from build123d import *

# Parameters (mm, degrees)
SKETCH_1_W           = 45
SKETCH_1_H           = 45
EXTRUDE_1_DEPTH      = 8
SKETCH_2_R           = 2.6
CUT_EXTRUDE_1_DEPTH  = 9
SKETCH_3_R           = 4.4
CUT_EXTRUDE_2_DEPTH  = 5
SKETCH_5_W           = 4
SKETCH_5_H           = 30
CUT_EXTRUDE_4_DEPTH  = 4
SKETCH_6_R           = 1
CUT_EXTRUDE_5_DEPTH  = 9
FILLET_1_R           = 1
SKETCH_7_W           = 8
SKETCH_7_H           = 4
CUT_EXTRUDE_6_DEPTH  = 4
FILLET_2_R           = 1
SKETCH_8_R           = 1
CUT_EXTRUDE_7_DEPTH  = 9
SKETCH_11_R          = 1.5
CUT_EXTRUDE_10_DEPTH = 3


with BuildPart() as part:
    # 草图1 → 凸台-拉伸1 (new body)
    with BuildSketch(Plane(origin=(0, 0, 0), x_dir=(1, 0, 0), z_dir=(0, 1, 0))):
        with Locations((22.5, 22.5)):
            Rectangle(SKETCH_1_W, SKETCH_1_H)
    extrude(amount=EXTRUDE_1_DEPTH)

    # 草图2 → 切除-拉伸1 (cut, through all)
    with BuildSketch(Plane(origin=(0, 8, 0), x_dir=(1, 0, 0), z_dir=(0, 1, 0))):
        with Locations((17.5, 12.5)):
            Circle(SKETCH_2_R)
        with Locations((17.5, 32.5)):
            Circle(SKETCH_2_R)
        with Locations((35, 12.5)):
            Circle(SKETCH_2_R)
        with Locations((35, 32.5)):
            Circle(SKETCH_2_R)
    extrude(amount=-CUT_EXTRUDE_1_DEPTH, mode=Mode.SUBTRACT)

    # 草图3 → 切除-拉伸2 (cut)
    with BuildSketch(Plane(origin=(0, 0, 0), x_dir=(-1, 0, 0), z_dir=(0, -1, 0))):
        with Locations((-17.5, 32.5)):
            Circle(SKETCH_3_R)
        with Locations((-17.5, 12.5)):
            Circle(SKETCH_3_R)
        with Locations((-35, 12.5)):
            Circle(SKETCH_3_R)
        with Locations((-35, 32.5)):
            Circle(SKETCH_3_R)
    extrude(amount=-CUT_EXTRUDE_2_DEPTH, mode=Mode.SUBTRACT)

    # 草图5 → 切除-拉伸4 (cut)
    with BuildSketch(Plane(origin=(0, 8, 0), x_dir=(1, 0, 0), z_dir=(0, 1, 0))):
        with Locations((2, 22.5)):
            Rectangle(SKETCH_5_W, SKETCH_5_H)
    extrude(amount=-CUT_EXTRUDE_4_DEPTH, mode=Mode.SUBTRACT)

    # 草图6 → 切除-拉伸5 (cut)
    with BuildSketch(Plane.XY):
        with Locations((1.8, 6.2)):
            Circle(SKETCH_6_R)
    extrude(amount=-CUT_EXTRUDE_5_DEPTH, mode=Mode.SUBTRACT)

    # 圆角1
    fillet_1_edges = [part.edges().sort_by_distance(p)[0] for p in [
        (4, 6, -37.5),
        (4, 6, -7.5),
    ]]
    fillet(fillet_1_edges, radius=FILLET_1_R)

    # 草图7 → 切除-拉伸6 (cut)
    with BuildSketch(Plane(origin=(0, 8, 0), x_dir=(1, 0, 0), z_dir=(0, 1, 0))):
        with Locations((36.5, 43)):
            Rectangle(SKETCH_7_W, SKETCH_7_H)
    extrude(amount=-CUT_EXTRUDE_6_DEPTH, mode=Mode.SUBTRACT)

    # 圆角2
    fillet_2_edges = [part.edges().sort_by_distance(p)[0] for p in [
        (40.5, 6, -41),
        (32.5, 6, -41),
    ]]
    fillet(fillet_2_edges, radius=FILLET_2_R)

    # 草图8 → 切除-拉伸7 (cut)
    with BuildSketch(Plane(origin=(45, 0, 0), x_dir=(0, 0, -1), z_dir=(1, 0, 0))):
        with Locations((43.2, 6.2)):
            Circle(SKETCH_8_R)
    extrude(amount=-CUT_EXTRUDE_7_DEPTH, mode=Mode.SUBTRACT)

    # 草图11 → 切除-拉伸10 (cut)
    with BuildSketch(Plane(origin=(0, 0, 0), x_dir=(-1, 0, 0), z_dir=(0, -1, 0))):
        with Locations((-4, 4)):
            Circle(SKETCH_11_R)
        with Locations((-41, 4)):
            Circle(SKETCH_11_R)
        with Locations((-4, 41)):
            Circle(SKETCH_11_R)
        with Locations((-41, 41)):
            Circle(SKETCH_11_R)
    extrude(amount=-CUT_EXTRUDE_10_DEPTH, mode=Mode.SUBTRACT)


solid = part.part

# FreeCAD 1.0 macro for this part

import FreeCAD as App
import Part
import Sketcher
from FreeCAD import Vector


def edges_at(feature, points):
    """Names of the edges that pass closest to the given points."""
    edges = feature.Shape.Edges
    near = lambda p: min(range(len(edges)), key=lambda i: edges[i].distToShape(Part.Vertex(*p))[0])
    return sorted({f"Edge{near(p) + 1}" for p in points})

doc = App.newDocument("Part")
params = doc.addObject("Spreadsheet::Sheet", "Params")
for row, (alias, value) in enumerate([
    ("sketch1_width", "45 mm"),
    ("pad1_length", "8 mm"),
    ("sketch2_diameter", "5.2 mm"),
    ("sketch3_diameter", "8.8 mm"),
    ("pocket2_length", "5 mm"),
    ("sketch4_width", "4 mm"),
    ("sketch4_height", "30 mm"),
    ("pocket3_length", "4 mm"),
    ("sketch5_diameter", "2 mm"),
    ("pocket4_length", "9 mm"),
    ("fillet_radius", "1 mm"),
    ("sketch6_width", "8 mm"),
    ("sketch6_height", "4 mm"),
    ("pocket5_length", "4 mm"),
    ("fillet2_radius", "1 mm"),
    ("sketch7_diameter", "2 mm"),
    ("pocket6_length", "9 mm"),
    ("sketch8_diameter", "3 mm"),
    ("pocket7_length", "3 mm"),
], start=1):
    params.set(f"A{row}", alias)
    params.set(f"B{row}", "=" + value)
    params.setAlias(f"B{row}", alias)

body = doc.addObject("PartDesign::Body", "Body")

# Sketch on XZ plane
sketch1 = body.newObject("Sketcher::SketchObject", "Sketch")
sketch1.AttachmentSupport = (doc.getObject("XZ_Plane"), [""])
sketch1.MapMode = "FlatFace"
sketch1.addGeometry([
    Part.LineSegment(Vector(0, -45, 0), Vector(0, 0, 0)),
    Part.LineSegment(Vector(0, 0, 0), Vector(45, 0, 0)),
    Part.LineSegment(Vector(45, 0, 0), Vector(45, -45, 0)),
    Part.LineSegment(Vector(45, -45, 0), Vector(0, -45, 0)),
], False)
sketch1.addConstraint([
    Sketcher.Constraint("Coincident", 0, 2, 1, 1),
    Sketcher.Constraint("Coincident", 1, 2, 2, 1),
    Sketcher.Constraint("Coincident", 2, 2, 3, 1),
    Sketcher.Constraint("Coincident", 3, 2, 0, 1),
    Sketcher.Constraint("Vertical", 0),
    Sketcher.Constraint("Horizontal", 1),
    Sketcher.Constraint("Vertical", 2),
    Sketcher.Constraint("Horizontal", 3),
    Sketcher.Constraint("Coincident", 0, 2, -1, 1),
    Sketcher.Constraint("Equal", 3, 0),
    Sketcher.Constraint("DistanceX", 1, 1, 1, 2, 45.0),
])
sketch1.setExpression("Constraints[10]", "Params.sketch1_width")
pad1 = body.newObject("PartDesign::Pad", "Pad")
pad1.Profile = sketch1
pad1.setExpression("Length", "Params.pad1_length")
pad1.Reversed = True

# Sketch on XZ plane
sketch2 = body.newObject("Sketcher::SketchObject", "Sketch001")
sketch2.AttachmentSupport = (doc.getObject("XZ_Plane"), [""])
sketch2.MapMode = "FlatFace"
sketch2.AttachmentOffset = App.Placement(Vector(0, 0, -8), App.Rotation())
sketch2.addGeometry([
    Part.Circle(Vector(17.5, -12.5, 0), Vector(0, 0, 1), 2.6),
    Part.Circle(Vector(17.5, -32.5, 0), Vector(0, 0, 1), 2.6),
    Part.Circle(Vector(35, -12.5, 0), Vector(0, 0, 1), 2.6),
    Part.Circle(Vector(35, -32.5, 0), Vector(0, 0, 1), 2.6),
], False)
sketch2.addConstraint([
    Sketcher.Constraint("Equal", 0, 1),
    Sketcher.Constraint("Equal", 1, 2),
    Sketcher.Constraint("Equal", 2, 3),
    Sketcher.Constraint("Horizontal", 0, 3, 2, 3),
    Sketcher.Constraint("Horizontal", 1, 3, 3, 3),
    Sketcher.Constraint("Vertical", 0, 3, 1, 3),
    Sketcher.Constraint("Vertical", 2, 3, 3, 3),
    Sketcher.Constraint("Diameter", 0, 5.2),
    Sketcher.Constraint("DistanceX", -1, 1, 2, 3, 35.0),
    Sketcher.Constraint("DistanceY", 1, 3, 0, 3, 20.0),
    Sketcher.Constraint("DistanceX", -1, 1, 0, 3, 17.5),
    Sketcher.Constraint("DistanceY", 0, 3, -1, 1, 12.5),
])
sketch2.setExpression("Constraints[7]", "Params.sketch2_diameter")
pocket1 = body.newObject("PartDesign::Pocket", "Pocket")
pocket1.Profile = sketch2
pocket1.Type = "ThroughAll"
pocket1.Reversed = True

# Sketch on XZ plane
sketch3 = body.newObject("Sketcher::SketchObject", "Sketch002")
sketch3.AttachmentSupport = (doc.getObject("XZ_Plane"), [""])
sketch3.MapMode = "FlatFace"
sketch3.addGeometry([
    Part.Circle(Vector(17.5, -32.5, 0), Vector(0, 0, 1), 4.4),
    Part.Circle(Vector(17.5, -12.5, 0), Vector(0, 0, 1), 4.4),
    Part.Circle(Vector(35, -12.5, 0), Vector(0, 0, 1), 4.4),
    Part.Circle(Vector(35, -32.5, 0), Vector(0, 0, 1), 4.4),
], False)
sketch3.addConstraint([
    Sketcher.Constraint("Equal", 0, 1),
    Sketcher.Constraint("Equal", 1, 2),
    Sketcher.Constraint("Equal", 2, 3),
    Sketcher.Constraint("Horizontal", 1, 3, 2, 3),
    Sketcher.Constraint("Horizontal", 0, 3, 3, 3),
    Sketcher.Constraint("Vertical", 0, 3, 1, 3),
    Sketcher.Constraint("Vertical", 2, 3, 3, 3),
    Sketcher.Constraint("Diameter", 0, 8.8),
    Sketcher.Constraint("DistanceX", -1, 1, 2, 3, 35.0),
    Sketcher.Constraint("DistanceY", 0, 3, 1, 3, 20.0),
    Sketcher.Constraint("DistanceX", -1, 1, 0, 3, 17.5),
    Sketcher.Constraint("DistanceY", 0, 3, -1, 1, 32.5),
])
sketch3.setExpression("Constraints[7]", "Params.sketch3_diameter")
pocket2 = body.newObject("PartDesign::Pocket", "Pocket001")
pocket2.Profile = sketch3
pocket2.setExpression("Length", "Params.pocket2_length")

# Sketch on XZ plane
sketch4 = body.newObject("Sketcher::SketchObject", "Sketch003")
sketch4.AttachmentSupport = (doc.getObject("XZ_Plane"), [""])
sketch4.MapMode = "FlatFace"
sketch4.AttachmentOffset = App.Placement(Vector(0, 0, -8), App.Rotation())
sketch4.addGeometry([
    Part.LineSegment(Vector(0, -37.5, 0), Vector(0, -7.5, 0)),
    Part.LineSegment(Vector(0, -7.5, 0), Vector(4, -7.5, 0)),
    Part.LineSegment(Vector(4, -7.5, 0), Vector(4, -37.5, 0)),
    Part.LineSegment(Vector(4, -37.5, 0), Vector(0, -37.5, 0)),
], False)
sketch4.addConstraint([
    Sketcher.Constraint("Coincident", 0, 2, 1, 1),
    Sketcher.Constraint("Coincident", 1, 2, 2, 1),
    Sketcher.Constraint("Coincident", 2, 2, 3, 1),
    Sketcher.Constraint("Coincident", 3, 2, 0, 1),
    Sketcher.Constraint("Vertical", 0),
    Sketcher.Constraint("Horizontal", 1),
    Sketcher.Constraint("Vertical", 2),
    Sketcher.Constraint("Horizontal", 3),
    Sketcher.Constraint("PointOnObject", 0, 2, -2),
    Sketcher.Constraint("DistanceX", 1, 1, 1, 2, 4.0),
    Sketcher.Constraint("DistanceY", 0, 1, 0, 2, 30.0),
    Sketcher.Constraint("DistanceY", 0, 2, -1, 1, 7.5),
])
sketch4.setExpression("Constraints[9]", "Params.sketch4_width")
sketch4.setExpression("Constraints[10]", "Params.sketch4_height")
pocket3 = body.newObject("PartDesign::Pocket", "Pocket002")
pocket3.Profile = sketch4
pocket3.setExpression("Length", "Params.pocket3_length")
pocket3.Reversed = True

# Sketch on XY plane
sketch5 = body.newObject("Sketcher::SketchObject", "Sketch004")
sketch5.AttachmentSupport = (doc.getObject("XY_Plane"), [""])
sketch5.MapMode = "FlatFace"
sketch5.addGeometry(Part.Circle(Vector(1.8, 6.2, 0), Vector(0, 0, 1), 1), False)
sketch5.addConstraint([
    Sketcher.Constraint("Diameter", 0, 2.0),
    Sketcher.Constraint("DistanceX", -1, 1, 0, 3, 1.8),
    Sketcher.Constraint("DistanceY", -1, 1, 0, 3, 6.2),
])
sketch5.setExpression("Constraints[0]", "Params.sketch5_diameter")
pocket4 = body.newObject("PartDesign::Pocket", "Pocket003")
pocket4.Profile = sketch5
pocket4.setExpression("Length", "Params.pocket4_length")
doc.recompute()

fillet = body.newObject("PartDesign::Fillet", "Fillet")
fillet.Base = (pocket4, edges_at(pocket4, [(4, 6, -37.5), (4, 6, -7.5)]))
fillet.setExpression("Radius", "Params.fillet_radius")

# Sketch on XZ plane
sketch6 = body.newObject("Sketcher::SketchObject", "Sketch005")
sketch6.AttachmentSupport = (doc.getObject("XZ_Plane"), [""])
sketch6.MapMode = "FlatFace"
sketch6.AttachmentOffset = App.Placement(Vector(0, 0, -8), App.Rotation())
sketch6.addGeometry([
    Part.LineSegment(Vector(32.5, -45, 0), Vector(32.5, -41, 0)),
    Part.LineSegment(Vector(32.5, -41, 0), Vector(40.5, -41, 0)),
    Part.LineSegment(Vector(40.5, -41, 0), Vector(40.5, -45, 0)),
    Part.LineSegment(Vector(40.5, -45, 0), Vector(32.5, -45, 0)),
], False)
sketch6.addConstraint([
    Sketcher.Constraint("Coincident", 0, 2, 1, 1),
    Sketcher.Constraint("Coincident", 1, 2, 2, 1),
    Sketcher.Constraint("Coincident", 2, 2, 3, 1),
    Sketcher.Constraint("Coincident", 3, 2, 0, 1),
    Sketcher.Constraint("Vertical", 0),
    Sketcher.Constraint("Horizontal", 1),
    Sketcher.Constraint("Vertical", 2),
    Sketcher.Constraint("Horizontal", 3),
    Sketcher.Constraint("DistanceX", 1, 1, 1, 2, 8.0),
    Sketcher.Constraint("DistanceY", 0, 1, 0, 2, 4.0),
    Sketcher.Constraint("DistanceY", 0, 2, -1, 1, 41.0),
    Sketcher.Constraint("DistanceX", -1, 1, 0, 2, 32.5),
])
sketch6.setExpression("Constraints[8]", "Params.sketch6_width")
sketch6.setExpression("Constraints[9]", "Params.sketch6_height")
pocket5 = body.newObject("PartDesign::Pocket", "Pocket004")
pocket5.Profile = sketch6
pocket5.setExpression("Length", "Params.pocket5_length")
pocket5.Reversed = True
doc.recompute()

fillet2 = body.newObject("PartDesign::Fillet", "Fillet001")
fillet2.Base = (pocket5, edges_at(pocket5, [(40.5, 6, -41), (32.5, 6, -41)]))
fillet2.setExpression("Radius", "Params.fillet2_radius")

# Sketch on YZ plane
sketch7 = body.newObject("Sketcher::SketchObject", "Sketch006")
sketch7.AttachmentSupport = (doc.getObject("YZ_Plane"), [""])
sketch7.MapMode = "FlatFace"
sketch7.AttachmentOffset = App.Placement(Vector(0, 0, 45), App.Rotation())
sketch7.addGeometry(Part.Circle(Vector(6.2, -43.2, 0), Vector(0, 0, 1), 1), False)
sketch7.addConstraint([
    Sketcher.Constraint("Diameter", 0, 2.0),
    Sketcher.Constraint("DistanceX", -1, 1, 0, 3, 6.2),
    Sketcher.Constraint("DistanceY", 0, 3, -1, 1, 43.2),
])
sketch7.setExpression("Constraints[0]", "Params.sketch7_diameter")
pocket6 = body.newObject("PartDesign::Pocket", "Pocket005")
pocket6.Profile = sketch7
pocket6.setExpression("Length", "Params.pocket6_length")

# Sketch on XZ plane
sketch8 = body.newObject("Sketcher::SketchObject", "Sketch007")
sketch8.AttachmentSupport = (doc.getObject("XZ_Plane"), [""])
sketch8.MapMode = "FlatFace"
sketch8.addGeometry([
    Part.Circle(Vector(4, -4, 0), Vector(0, 0, 1), 1.5),
    Part.Circle(Vector(41, -4, 0), Vector(0, 0, 1), 1.5),
    Part.Circle(Vector(4, -41, 0), Vector(0, 0, 1), 1.5),
    Part.Circle(Vector(41, -41, 0), Vector(0, 0, 1), 1.5),
], False)
sketch8.addConstraint([
    Sketcher.Constraint("Equal", 0, 1),
    Sketcher.Constraint("Equal", 1, 2),
    Sketcher.Constraint("Equal", 2, 3),
    Sketcher.Constraint("Horizontal", 0, 3, 1, 3),
    Sketcher.Constraint("Horizontal", 2, 3, 3, 3),
    Sketcher.Constraint("Vertical", 0, 3, 2, 3),
    Sketcher.Constraint("Vertical", 1, 3, 3, 3),
    Sketcher.Constraint("Diameter", 0, 3.0),
    Sketcher.Constraint("DistanceX", -1, 1, 0, 3, 4.0),
    Sketcher.Constraint("DistanceY", 0, 3, -1, 1, 4.0),
    Sketcher.Constraint("DistanceX", -1, 1, 1, 3, 41.0),
    Sketcher.Constraint("DistanceY", 2, 3, -1, 1, 41.0),
])
sketch8.setExpression("Constraints[7]", "Params.sketch8_diameter")
pocket7 = body.newObject("PartDesign::Pocket", "Pocket006")
pocket7.Profile = sketch8
pocket7.setExpression("Length", "Params.pocket7_length")

doc.recompute()
